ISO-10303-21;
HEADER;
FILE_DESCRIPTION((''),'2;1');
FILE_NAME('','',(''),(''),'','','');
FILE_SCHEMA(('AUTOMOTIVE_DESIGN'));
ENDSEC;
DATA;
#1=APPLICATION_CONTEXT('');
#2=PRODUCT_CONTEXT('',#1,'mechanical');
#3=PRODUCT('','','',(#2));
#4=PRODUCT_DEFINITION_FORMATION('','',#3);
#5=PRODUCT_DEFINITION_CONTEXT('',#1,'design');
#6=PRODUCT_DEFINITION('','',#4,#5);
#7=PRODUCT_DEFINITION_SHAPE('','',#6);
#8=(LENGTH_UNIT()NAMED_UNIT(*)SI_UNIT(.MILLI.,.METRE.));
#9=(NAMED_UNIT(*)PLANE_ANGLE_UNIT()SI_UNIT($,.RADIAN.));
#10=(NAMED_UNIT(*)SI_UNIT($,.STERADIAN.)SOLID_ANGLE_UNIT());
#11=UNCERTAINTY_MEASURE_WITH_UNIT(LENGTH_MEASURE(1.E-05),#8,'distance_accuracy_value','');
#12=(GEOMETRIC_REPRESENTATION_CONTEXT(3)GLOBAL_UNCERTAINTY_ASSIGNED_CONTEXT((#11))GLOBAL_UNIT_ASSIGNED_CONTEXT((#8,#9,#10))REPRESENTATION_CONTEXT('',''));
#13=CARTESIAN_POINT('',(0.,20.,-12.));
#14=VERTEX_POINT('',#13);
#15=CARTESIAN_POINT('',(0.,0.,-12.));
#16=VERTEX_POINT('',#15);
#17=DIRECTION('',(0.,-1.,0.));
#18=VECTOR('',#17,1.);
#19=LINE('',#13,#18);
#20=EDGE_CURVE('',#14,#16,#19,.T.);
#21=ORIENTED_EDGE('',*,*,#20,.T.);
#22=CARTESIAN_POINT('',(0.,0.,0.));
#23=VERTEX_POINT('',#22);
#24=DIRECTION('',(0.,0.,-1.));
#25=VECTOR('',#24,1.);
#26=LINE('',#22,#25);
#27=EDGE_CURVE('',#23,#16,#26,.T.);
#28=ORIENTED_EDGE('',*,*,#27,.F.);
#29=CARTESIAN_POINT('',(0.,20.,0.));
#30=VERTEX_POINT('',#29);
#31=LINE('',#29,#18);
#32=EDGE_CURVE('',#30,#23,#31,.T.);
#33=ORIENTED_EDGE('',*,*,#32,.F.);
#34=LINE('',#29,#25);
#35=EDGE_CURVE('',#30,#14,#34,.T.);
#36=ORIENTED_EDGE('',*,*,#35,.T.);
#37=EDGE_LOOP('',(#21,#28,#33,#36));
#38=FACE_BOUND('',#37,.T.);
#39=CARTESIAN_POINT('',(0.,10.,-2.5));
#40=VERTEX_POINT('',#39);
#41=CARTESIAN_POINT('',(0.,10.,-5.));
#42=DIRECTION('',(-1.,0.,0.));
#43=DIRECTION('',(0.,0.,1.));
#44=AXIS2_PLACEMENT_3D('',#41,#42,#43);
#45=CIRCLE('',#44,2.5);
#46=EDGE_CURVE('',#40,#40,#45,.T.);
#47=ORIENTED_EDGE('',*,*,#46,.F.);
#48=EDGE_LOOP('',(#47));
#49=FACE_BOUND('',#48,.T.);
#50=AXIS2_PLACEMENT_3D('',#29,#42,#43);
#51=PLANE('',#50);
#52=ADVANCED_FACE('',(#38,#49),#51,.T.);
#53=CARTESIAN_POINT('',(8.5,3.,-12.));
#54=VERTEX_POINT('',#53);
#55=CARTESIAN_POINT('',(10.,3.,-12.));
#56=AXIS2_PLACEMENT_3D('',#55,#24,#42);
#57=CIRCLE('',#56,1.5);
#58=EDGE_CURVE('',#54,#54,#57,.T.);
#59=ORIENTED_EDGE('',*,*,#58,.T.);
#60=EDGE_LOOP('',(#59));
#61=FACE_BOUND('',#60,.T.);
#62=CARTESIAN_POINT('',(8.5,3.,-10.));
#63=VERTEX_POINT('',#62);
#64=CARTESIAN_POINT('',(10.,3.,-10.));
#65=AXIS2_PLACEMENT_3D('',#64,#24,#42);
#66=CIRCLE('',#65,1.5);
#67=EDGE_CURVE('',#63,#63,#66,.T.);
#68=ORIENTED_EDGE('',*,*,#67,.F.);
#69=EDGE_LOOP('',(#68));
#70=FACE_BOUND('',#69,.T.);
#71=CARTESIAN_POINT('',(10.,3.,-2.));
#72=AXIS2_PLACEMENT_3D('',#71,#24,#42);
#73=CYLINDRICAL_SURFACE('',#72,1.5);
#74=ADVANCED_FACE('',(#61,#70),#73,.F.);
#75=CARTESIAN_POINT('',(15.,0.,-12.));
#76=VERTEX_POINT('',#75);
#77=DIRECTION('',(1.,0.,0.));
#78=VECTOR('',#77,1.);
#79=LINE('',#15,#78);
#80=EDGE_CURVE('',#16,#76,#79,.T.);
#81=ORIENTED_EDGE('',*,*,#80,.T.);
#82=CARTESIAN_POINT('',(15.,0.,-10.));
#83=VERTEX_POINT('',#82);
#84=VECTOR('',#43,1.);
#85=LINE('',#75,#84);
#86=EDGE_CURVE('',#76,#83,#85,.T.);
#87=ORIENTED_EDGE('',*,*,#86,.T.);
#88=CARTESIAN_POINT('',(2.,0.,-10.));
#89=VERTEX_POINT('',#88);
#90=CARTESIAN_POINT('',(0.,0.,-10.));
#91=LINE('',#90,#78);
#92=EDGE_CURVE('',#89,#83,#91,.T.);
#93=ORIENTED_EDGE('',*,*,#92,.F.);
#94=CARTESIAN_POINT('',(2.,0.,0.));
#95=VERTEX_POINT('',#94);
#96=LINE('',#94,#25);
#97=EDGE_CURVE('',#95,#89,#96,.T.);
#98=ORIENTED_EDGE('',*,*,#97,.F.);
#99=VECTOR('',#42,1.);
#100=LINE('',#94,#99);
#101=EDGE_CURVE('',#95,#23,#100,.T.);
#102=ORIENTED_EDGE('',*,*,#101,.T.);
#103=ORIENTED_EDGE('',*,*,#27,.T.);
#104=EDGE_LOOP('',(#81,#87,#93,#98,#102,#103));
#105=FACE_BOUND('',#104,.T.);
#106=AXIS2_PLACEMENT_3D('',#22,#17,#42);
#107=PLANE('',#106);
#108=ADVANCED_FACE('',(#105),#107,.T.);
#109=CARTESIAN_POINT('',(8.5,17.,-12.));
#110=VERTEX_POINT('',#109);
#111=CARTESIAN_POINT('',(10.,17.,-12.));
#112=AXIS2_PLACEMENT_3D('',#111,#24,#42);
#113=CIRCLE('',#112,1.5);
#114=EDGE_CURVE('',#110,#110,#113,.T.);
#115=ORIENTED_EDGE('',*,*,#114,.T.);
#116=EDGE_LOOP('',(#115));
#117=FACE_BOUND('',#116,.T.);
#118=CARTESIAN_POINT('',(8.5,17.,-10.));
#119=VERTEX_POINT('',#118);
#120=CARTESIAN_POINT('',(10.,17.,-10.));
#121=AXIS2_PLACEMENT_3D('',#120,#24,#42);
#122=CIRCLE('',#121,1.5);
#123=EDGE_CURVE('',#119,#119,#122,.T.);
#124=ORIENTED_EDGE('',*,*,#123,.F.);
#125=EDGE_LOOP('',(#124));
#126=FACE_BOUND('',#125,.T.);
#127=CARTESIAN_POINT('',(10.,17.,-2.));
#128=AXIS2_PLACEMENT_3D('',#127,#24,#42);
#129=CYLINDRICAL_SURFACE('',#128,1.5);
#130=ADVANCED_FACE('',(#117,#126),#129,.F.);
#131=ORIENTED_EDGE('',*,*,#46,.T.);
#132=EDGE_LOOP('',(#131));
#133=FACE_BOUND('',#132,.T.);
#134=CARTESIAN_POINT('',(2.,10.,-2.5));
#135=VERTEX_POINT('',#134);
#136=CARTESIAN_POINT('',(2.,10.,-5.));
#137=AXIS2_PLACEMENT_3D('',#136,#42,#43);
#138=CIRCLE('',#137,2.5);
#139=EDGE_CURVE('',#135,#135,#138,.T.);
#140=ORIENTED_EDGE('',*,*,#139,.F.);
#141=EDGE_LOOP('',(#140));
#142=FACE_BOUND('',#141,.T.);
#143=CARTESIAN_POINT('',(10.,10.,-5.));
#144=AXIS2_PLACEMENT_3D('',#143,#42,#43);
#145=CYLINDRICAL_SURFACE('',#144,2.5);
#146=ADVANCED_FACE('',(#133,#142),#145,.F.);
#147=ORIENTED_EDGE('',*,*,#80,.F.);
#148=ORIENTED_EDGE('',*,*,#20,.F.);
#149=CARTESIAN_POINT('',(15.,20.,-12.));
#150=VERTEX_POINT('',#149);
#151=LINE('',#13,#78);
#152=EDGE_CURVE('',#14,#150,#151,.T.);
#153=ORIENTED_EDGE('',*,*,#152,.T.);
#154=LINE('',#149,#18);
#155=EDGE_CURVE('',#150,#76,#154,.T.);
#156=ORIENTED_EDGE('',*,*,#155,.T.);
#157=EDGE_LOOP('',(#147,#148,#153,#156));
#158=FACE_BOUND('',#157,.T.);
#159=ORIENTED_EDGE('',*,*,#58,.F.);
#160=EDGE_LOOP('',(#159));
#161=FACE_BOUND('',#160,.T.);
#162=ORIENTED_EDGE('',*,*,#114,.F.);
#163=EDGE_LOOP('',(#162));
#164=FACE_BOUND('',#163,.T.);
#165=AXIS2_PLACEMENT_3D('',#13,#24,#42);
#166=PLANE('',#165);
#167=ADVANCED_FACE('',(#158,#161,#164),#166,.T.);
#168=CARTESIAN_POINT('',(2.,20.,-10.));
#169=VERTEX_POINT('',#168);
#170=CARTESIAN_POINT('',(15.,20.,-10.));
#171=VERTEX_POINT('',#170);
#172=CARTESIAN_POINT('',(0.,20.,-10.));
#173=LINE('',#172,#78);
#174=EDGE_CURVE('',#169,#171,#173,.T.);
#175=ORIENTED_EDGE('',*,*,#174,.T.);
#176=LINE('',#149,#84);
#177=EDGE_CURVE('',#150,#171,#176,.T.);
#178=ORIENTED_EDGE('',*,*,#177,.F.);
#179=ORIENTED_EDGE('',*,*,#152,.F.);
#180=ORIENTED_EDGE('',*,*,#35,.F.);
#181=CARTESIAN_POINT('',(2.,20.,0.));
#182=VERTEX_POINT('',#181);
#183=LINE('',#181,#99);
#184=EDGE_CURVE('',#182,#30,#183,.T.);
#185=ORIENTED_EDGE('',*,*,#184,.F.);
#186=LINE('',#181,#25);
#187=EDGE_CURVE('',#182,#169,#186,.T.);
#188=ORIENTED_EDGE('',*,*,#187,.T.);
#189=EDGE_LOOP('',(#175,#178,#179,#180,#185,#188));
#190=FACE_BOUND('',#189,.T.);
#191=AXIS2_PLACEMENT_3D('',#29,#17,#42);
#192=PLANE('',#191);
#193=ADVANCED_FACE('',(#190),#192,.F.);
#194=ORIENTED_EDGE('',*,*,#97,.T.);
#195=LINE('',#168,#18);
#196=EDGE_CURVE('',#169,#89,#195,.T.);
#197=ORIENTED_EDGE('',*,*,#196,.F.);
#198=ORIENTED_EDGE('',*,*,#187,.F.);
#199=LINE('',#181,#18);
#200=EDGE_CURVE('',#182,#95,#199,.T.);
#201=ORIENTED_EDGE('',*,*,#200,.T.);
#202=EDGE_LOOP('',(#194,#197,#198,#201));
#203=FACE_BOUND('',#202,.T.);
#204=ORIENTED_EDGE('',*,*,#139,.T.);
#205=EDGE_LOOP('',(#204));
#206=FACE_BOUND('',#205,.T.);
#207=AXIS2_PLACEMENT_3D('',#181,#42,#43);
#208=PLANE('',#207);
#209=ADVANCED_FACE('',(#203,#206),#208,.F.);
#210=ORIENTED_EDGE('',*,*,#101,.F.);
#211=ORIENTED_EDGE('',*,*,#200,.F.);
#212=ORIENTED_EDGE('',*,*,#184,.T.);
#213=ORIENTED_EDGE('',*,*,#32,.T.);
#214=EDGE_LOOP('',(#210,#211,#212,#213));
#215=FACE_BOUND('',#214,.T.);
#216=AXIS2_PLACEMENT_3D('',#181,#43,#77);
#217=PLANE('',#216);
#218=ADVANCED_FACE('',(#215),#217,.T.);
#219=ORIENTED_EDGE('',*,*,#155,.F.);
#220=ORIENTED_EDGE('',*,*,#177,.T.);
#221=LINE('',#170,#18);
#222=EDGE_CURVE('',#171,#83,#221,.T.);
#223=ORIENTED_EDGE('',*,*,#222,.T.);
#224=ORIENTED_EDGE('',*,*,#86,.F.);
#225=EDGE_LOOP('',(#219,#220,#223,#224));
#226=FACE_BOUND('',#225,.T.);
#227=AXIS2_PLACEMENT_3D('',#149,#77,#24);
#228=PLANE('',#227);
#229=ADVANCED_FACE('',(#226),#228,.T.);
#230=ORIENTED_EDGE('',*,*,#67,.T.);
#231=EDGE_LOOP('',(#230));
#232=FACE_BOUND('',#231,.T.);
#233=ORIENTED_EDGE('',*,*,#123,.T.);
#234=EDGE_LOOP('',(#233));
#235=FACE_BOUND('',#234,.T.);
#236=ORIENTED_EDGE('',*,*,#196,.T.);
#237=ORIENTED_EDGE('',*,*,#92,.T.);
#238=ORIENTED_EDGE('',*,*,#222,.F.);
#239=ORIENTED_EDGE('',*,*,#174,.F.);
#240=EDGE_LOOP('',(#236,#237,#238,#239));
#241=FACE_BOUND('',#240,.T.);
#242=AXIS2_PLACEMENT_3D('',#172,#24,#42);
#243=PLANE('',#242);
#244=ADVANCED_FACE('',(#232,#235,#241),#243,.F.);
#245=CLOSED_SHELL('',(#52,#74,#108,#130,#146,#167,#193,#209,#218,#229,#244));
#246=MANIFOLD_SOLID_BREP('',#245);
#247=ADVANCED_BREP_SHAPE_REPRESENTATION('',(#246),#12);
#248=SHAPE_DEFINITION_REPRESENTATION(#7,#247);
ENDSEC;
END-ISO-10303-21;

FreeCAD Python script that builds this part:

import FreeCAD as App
import Part
import Sketcher

doc = App.newDocument("Part")
body = doc.addObject("PartDesign::Body", "Body")

sketch1 = body.newObject("Sketcher::SketchObject", "Sketch")
sketch1.AttachmentSupport = (doc.getObject("XZ_Plane"), [""])
sketch1.MapMode = "FlatFace"
sketch1.addGeometry([
    Part.LineSegment(App.Vector(0, -12, 0), App.Vector(0, 0, 0)),
    Part.LineSegment(App.Vector(0, 0, 0), App.Vector(2, 0, 0)),
    Part.LineSegment(App.Vector(2, 0, 0), App.Vector(2, -10, 0)),
    Part.LineSegment(App.Vector(2, -10, 0), App.Vector(15, -10, 0)),
    Part.LineSegment(App.Vector(15, -10, 0), App.Vector(15, -12, 0)),
    Part.LineSegment(App.Vector(15, -12, 0), App.Vector(0, -12, 0)),
], False)
sketch1.addConstraint([
    Sketcher.Constraint("Coincident", 0, 2, 1, 1),
    Sketcher.Constraint("Coincident", 1, 2, 2, 1),
    Sketcher.Constraint("Coincident", 2, 2, 3, 1),
    Sketcher.Constraint("Coincident", 3, 2, 4, 1),
    Sketcher.Constraint("Coincident", 4, 2, 5, 1),
    Sketcher.Constraint("Coincident", 5, 2, 0, 1),
    Sketcher.Constraint("Vertical", 0),
    Sketcher.Constraint("Horizontal", 1),
    Sketcher.Constraint("Vertical", 2),
    Sketcher.Constraint("Horizontal", 3),
    Sketcher.Constraint("Vertical", 4),
    Sketcher.Constraint("Horizontal", 5),
    Sketcher.Constraint("Coincident", 0, 2, -1, 1),
    Sketcher.Constraint("Equal", 1, 4),
    Sketcher.Constraint("DistanceX", 1, 1, 1, 2, 2.0),
    Sketcher.Constraint("DistanceX", 3, 1, 3, 2, 13.0),
    Sketcher.Constraint("DistanceY", 0, 1, 0, 2, 12.0),
])
pad1 = body.newObject("PartDesign::Pad", "Pad")
pad1.Profile = sketch1
pad1.Length = 20
pad1.Reversed = True

sketch2 = body.newObject("Sketcher::SketchObject", "Sketch001")
sketch2.AttachmentSupport = (doc.getObject("YZ_Plane"), [""])
sketch2.MapMode = "FlatFace"
sketch2.addGeometry(Part.Circle(App.Vector(10, -5, 0), App.Vector(0, 0, 1), 2.5), False)
sketch2.addConstraint([
    Sketcher.Constraint("Diameter", 0, 5.0),
    Sketcher.Constraint("DistanceX", -1, 1, 0, 3, 10.0),
    Sketcher.Constraint("DistanceY", 0, 3, -1, 1, 5.0),
])
pocket1 = body.newObject("PartDesign::Pocket", "Pocket")
pocket1.Profile = sketch2
pocket1.Length = 10
pocket1.Reversed = True

sketch3 = body.newObject("Sketcher::SketchObject", "Sketch002")
sketch3.AttachmentSupport = (doc.getObject("XY_Plane"), [""])
sketch3.MapMode = "FlatFace"
sketch3.AttachmentOffset = App.Placement(App.Vector(0, 0, -12), App.Rotation())
sketch3.addGeometry([
    Part.Circle(App.Vector(10, 17, 0), App.Vector(0, 0, 1), 1.5),
    Part.Circle(App.Vector(10, 3, 0), App.Vector(0, 0, 1), 1.5),
], False)
sketch3.addConstraint([
    Sketcher.Constraint("Equal", 0, 1),
    Sketcher.Constraint("Vertical", 0, 3, 1, 3),
    Sketcher.Constraint("Diameter", 0, 3.0),
    Sketcher.Constraint("DistanceX", -1, 1, 0, 3, 10.0),
    Sketcher.Constraint("DistanceY", -1, 1, 0, 3, 17.0),
    Sketcher.Constraint("DistanceY", -1, 1, 1, 3, 3.0),
])
pocket2 = body.newObject("PartDesign::Pocket", "Pocket001")
pocket2.Profile = sketch3
pocket2.Length = 10
pocket2.Reversed = True

doc.recompute()
